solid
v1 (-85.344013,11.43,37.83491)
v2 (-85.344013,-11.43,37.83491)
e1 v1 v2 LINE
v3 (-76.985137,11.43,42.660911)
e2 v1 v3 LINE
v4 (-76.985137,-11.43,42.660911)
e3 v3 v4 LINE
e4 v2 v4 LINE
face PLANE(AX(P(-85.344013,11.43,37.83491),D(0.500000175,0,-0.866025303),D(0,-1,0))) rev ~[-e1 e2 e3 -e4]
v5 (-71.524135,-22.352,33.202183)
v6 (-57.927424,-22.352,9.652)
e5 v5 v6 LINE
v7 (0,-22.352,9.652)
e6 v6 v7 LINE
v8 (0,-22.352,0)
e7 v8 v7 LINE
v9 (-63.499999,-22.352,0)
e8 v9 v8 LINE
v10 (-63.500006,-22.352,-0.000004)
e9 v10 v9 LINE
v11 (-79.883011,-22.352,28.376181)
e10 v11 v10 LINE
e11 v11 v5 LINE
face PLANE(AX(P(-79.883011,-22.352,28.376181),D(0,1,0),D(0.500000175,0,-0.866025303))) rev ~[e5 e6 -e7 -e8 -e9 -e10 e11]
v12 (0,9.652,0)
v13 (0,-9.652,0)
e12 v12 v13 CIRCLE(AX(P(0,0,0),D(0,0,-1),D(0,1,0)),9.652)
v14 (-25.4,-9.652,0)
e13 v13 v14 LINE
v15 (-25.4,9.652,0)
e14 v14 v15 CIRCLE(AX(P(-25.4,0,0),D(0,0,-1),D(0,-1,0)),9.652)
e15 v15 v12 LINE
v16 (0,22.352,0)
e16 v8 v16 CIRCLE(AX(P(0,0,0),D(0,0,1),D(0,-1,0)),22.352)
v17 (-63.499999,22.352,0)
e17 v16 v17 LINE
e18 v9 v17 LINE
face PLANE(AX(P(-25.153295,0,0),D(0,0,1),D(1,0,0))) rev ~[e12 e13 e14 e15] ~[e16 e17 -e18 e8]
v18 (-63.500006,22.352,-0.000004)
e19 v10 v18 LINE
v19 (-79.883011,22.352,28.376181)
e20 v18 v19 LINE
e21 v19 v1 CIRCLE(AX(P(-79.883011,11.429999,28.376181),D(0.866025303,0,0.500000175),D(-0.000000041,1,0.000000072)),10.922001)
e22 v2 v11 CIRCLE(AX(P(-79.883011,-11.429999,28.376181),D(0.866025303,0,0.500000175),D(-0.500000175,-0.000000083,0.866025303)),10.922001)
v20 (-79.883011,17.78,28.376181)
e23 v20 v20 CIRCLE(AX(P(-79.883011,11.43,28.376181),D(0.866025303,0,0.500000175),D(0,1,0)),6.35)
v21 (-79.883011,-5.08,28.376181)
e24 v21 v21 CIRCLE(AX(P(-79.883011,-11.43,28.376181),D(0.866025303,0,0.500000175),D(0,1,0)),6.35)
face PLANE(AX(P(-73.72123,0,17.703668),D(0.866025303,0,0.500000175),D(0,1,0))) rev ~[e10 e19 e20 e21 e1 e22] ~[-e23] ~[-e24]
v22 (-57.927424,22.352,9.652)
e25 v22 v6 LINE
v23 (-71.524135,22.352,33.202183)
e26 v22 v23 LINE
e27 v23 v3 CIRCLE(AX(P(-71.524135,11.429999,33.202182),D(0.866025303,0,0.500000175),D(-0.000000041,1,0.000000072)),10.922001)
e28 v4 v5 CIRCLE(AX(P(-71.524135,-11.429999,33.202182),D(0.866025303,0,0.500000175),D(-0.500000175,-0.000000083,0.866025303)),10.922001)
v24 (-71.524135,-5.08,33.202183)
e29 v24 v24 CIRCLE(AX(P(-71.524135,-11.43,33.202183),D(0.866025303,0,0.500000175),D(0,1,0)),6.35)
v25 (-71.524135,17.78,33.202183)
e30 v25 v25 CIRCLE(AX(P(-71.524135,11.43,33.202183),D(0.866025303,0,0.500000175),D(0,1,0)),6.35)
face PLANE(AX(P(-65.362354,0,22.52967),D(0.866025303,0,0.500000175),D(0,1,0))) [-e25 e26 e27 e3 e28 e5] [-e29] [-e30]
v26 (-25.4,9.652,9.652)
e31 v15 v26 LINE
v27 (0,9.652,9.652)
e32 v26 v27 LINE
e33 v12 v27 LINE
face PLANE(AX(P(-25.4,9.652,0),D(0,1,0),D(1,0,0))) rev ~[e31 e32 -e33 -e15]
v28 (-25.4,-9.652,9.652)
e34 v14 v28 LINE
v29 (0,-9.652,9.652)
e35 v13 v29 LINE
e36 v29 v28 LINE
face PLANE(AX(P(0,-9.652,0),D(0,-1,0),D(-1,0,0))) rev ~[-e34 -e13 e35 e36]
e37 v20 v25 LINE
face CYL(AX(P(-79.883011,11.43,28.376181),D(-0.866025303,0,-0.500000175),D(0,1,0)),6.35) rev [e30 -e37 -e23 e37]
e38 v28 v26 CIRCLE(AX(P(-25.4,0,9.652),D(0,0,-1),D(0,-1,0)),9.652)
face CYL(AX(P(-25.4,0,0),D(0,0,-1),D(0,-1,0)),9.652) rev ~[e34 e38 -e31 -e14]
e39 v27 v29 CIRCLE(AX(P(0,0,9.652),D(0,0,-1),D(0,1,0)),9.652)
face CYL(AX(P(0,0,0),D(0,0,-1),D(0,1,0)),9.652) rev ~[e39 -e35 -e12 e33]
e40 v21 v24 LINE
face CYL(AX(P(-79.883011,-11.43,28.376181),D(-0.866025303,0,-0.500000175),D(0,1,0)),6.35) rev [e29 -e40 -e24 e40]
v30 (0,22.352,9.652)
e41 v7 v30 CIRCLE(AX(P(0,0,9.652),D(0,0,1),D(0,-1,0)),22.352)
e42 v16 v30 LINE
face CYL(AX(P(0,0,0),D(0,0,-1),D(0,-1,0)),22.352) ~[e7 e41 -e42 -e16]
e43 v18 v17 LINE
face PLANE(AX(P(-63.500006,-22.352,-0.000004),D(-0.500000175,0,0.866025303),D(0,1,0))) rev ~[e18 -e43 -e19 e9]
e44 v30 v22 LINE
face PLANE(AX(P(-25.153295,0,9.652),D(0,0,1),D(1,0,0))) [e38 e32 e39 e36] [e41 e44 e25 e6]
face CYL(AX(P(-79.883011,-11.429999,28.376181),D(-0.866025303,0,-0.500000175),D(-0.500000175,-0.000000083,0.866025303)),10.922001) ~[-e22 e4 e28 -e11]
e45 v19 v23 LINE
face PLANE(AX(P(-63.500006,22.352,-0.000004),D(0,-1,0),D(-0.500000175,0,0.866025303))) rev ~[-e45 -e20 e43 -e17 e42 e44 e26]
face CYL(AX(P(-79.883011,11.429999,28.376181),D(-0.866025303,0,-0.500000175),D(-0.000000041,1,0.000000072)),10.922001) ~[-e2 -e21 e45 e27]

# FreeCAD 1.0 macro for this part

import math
import FreeCAD as App
import Part
import Sketcher
Q = App.Units.Quantity

doc = App.newDocument("Part")
body = doc.addObject("PartDesign::Body", "Body")

# Sketch on an angled plane
sketch1 = body.newObject("Sketcher::SketchObject", "Sketch")
sketch1.Placement = App.Placement(App.Vector(-47.625, 0, -27.496307), App.Rotation(App.Vector(0, 1, 0), App.Vector(-0.500000175, 0, 0.866025303), App.Vector(0.866025303, 0, 0.500000175), "ZXY"))
sketch1.addGeometry([
    Part.LineSegment(App.Vector(-22.352, 31.75, 0), App.Vector(22.352, 31.75, 0)),  # 0
    Part.LineSegment(App.Vector(22.352, 31.75, 0), App.Vector(22.352, 64.516, 0)),  # 1
    Part.ArcOfCircle(Part.Circle(App.Vector(11.429999, 64.515999, 0), App.Vector(0, 0, 1), 10.922001), math.radians(0.000005), math.radians(89.999995)),  # 2
    Part.LineSegment(App.Vector(11.43, 75.438, 0), App.Vector(-11.43, 75.438, 0)),  # 3
    Part.ArcOfCircle(Part.Circle(App.Vector(-11.429999, 64.515999, 0), App.Vector(0, 0, 1), 10.922001), math.radians(90.000005), math.radians(179.999995)),  # 4
    Part.LineSegment(App.Vector(-22.352, 64.516, 0), App.Vector(-22.352, 31.75, 0)),  # 5
    Part.Circle(App.Vector(-11.43, 64.516, 0), App.Vector(0, 0, 1), 6.35),  # 6
    Part.Circle(App.Vector(11.43, 64.516, 0), App.Vector(0, 0, 1), 6.35),  # 7
], False)
sketch1.addConstraint([
    Sketcher.Constraint("Coincident", 0, 2, 1, 1),
    Sketcher.Constraint("Tangent", 1, 2, 2, 1),
    Sketcher.Constraint("Tangent", 2, 2, 3, 1),
    Sketcher.Constraint("Tangent", 3, 2, 4, 1),
    Sketcher.Constraint("Tangent", 4, 2, 5, 1),
    Sketcher.Constraint("Coincident", 5, 2, 0, 1),
    Sketcher.Constraint("Horizontal", 0),
    Sketcher.Constraint("Vertical", 1),
    Sketcher.Constraint("Horizontal", 3),
    Sketcher.Constraint("Vertical", 5),
    Sketcher.Constraint("Coincident", 6, 3, 4, 3),
    Sketcher.Constraint("Coincident", 7, 3, 2, 3),
    Sketcher.Constraint("Equal", 2, 4),
    Sketcher.Constraint("Equal", 6, 7),
    Sketcher.Constraint("Diameter", 6, Q("0.5 in")),
    Sketcher.Constraint("Radius", 2, Q("0.43 in")),
    Sketcher.Constraint("DistanceX", 3, 2, 3, 1, Q("0.9 in")),
    Sketcher.Constraint("DistanceY", 1, 1, 1, 2, Q("1.29 in")),
    Sketcher.Constraint("DistanceX", -1, 1, 2, 3, Q("0.45 in")),
    Sketcher.Constraint("DistanceY", -1, 1, 2, 3, Q("2.54 in")),
])
pad1 = body.newObject("PartDesign::Pad", "Pad")
pad1.Profile = sketch1
pad1.Length = Q("0.38 in")

# Sketch on XY plane
sketch2 = body.newObject("Sketcher::SketchObject", "Sketch001")
sketch2.AttachmentSupport = (doc.getObject("XY_Plane"), [""])
sketch2.MapMode = "FlatFace"
sketch2.addGeometry([
    Part.LineSegment(App.Vector(-63.5, -22.352, 0), App.Vector(0, -22.352, 0)),  # 0
    Part.ArcOfCircle(Part.Circle(App.Vector(0, 0, 0), App.Vector(0, 0, 1), 22.352), math.radians(-90), math.radians(90)),  # 1
    Part.LineSegment(App.Vector(0, 22.352, 0), App.Vector(-63.5, 22.352, 0)),  # 2
    Part.LineSegment(App.Vector(-63.5, 22.352, 0), App.Vector(-63.5, -22.352, 0)),  # 3
    Part.LineSegment(App.Vector(-25.4, 9.652, 0), App.Vector(0, 9.652, 0)),  # 4
    Part.ArcOfCircle(Part.Circle(App.Vector(0, 0, 0), App.Vector(0, 0, 1), 9.652), math.radians(-90), math.radians(90)),  # 5
    Part.LineSegment(App.Vector(0, -9.652, 0), App.Vector(-25.4, -9.652, 0)),  # 6
    Part.ArcOfCircle(Part.Circle(App.Vector(-25.4, 0, 0), App.Vector(0, 0, 1), 9.652), math.radians(90), math.radians(270)),  # 7
], False)
sketch2.addConstraint([
    Sketcher.Constraint("Tangent", 0, 2, 1, 1),
    Sketcher.Constraint("Tangent", 1, 2, 2, 1),
    Sketcher.Constraint("Coincident", 2, 2, 3, 1),
    Sketcher.Constraint("Coincident", 3, 2, 0, 1),
    Sketcher.Constraint("Tangent", 4, 2, 5, 2),
    Sketcher.Constraint("Tangent", 5, 1, 6, 1),
    Sketcher.Constraint("Tangent", 6, 2, 7, 2),
    Sketcher.Constraint("Tangent", 7, 1, 4, 1),
    Sketcher.Constraint("Horizontal", 0),
    Sketcher.Constraint("Horizontal", 2),
    Sketcher.Constraint("Vertical", 3),
    Sketcher.Constraint("Horizontal", 4),
    Sketcher.Constraint("Horizontal", 6),
    Sketcher.Constraint("Coincident", 1, 3, -1, 1),
    Sketcher.Constraint("Coincident", 5, 3, -1, 1),
    Sketcher.Constraint("DistanceX", 4, 1, 4, 2, Q("1 in")),
    Sketcher.Constraint("Radius", 1, Q("0.88 in")),
    Sketcher.Constraint("Radius", 5, Q("0.38 in")),
    Sketcher.Constraint("DistanceX", 0, 1, 0, 2, Q("2.5 in")),
])
pad2 = body.newObject("PartDesign::Pad", "Pad001")
pad2.Profile = sketch2
pad2.Length = Q("0.38 in")

doc.recompute()
